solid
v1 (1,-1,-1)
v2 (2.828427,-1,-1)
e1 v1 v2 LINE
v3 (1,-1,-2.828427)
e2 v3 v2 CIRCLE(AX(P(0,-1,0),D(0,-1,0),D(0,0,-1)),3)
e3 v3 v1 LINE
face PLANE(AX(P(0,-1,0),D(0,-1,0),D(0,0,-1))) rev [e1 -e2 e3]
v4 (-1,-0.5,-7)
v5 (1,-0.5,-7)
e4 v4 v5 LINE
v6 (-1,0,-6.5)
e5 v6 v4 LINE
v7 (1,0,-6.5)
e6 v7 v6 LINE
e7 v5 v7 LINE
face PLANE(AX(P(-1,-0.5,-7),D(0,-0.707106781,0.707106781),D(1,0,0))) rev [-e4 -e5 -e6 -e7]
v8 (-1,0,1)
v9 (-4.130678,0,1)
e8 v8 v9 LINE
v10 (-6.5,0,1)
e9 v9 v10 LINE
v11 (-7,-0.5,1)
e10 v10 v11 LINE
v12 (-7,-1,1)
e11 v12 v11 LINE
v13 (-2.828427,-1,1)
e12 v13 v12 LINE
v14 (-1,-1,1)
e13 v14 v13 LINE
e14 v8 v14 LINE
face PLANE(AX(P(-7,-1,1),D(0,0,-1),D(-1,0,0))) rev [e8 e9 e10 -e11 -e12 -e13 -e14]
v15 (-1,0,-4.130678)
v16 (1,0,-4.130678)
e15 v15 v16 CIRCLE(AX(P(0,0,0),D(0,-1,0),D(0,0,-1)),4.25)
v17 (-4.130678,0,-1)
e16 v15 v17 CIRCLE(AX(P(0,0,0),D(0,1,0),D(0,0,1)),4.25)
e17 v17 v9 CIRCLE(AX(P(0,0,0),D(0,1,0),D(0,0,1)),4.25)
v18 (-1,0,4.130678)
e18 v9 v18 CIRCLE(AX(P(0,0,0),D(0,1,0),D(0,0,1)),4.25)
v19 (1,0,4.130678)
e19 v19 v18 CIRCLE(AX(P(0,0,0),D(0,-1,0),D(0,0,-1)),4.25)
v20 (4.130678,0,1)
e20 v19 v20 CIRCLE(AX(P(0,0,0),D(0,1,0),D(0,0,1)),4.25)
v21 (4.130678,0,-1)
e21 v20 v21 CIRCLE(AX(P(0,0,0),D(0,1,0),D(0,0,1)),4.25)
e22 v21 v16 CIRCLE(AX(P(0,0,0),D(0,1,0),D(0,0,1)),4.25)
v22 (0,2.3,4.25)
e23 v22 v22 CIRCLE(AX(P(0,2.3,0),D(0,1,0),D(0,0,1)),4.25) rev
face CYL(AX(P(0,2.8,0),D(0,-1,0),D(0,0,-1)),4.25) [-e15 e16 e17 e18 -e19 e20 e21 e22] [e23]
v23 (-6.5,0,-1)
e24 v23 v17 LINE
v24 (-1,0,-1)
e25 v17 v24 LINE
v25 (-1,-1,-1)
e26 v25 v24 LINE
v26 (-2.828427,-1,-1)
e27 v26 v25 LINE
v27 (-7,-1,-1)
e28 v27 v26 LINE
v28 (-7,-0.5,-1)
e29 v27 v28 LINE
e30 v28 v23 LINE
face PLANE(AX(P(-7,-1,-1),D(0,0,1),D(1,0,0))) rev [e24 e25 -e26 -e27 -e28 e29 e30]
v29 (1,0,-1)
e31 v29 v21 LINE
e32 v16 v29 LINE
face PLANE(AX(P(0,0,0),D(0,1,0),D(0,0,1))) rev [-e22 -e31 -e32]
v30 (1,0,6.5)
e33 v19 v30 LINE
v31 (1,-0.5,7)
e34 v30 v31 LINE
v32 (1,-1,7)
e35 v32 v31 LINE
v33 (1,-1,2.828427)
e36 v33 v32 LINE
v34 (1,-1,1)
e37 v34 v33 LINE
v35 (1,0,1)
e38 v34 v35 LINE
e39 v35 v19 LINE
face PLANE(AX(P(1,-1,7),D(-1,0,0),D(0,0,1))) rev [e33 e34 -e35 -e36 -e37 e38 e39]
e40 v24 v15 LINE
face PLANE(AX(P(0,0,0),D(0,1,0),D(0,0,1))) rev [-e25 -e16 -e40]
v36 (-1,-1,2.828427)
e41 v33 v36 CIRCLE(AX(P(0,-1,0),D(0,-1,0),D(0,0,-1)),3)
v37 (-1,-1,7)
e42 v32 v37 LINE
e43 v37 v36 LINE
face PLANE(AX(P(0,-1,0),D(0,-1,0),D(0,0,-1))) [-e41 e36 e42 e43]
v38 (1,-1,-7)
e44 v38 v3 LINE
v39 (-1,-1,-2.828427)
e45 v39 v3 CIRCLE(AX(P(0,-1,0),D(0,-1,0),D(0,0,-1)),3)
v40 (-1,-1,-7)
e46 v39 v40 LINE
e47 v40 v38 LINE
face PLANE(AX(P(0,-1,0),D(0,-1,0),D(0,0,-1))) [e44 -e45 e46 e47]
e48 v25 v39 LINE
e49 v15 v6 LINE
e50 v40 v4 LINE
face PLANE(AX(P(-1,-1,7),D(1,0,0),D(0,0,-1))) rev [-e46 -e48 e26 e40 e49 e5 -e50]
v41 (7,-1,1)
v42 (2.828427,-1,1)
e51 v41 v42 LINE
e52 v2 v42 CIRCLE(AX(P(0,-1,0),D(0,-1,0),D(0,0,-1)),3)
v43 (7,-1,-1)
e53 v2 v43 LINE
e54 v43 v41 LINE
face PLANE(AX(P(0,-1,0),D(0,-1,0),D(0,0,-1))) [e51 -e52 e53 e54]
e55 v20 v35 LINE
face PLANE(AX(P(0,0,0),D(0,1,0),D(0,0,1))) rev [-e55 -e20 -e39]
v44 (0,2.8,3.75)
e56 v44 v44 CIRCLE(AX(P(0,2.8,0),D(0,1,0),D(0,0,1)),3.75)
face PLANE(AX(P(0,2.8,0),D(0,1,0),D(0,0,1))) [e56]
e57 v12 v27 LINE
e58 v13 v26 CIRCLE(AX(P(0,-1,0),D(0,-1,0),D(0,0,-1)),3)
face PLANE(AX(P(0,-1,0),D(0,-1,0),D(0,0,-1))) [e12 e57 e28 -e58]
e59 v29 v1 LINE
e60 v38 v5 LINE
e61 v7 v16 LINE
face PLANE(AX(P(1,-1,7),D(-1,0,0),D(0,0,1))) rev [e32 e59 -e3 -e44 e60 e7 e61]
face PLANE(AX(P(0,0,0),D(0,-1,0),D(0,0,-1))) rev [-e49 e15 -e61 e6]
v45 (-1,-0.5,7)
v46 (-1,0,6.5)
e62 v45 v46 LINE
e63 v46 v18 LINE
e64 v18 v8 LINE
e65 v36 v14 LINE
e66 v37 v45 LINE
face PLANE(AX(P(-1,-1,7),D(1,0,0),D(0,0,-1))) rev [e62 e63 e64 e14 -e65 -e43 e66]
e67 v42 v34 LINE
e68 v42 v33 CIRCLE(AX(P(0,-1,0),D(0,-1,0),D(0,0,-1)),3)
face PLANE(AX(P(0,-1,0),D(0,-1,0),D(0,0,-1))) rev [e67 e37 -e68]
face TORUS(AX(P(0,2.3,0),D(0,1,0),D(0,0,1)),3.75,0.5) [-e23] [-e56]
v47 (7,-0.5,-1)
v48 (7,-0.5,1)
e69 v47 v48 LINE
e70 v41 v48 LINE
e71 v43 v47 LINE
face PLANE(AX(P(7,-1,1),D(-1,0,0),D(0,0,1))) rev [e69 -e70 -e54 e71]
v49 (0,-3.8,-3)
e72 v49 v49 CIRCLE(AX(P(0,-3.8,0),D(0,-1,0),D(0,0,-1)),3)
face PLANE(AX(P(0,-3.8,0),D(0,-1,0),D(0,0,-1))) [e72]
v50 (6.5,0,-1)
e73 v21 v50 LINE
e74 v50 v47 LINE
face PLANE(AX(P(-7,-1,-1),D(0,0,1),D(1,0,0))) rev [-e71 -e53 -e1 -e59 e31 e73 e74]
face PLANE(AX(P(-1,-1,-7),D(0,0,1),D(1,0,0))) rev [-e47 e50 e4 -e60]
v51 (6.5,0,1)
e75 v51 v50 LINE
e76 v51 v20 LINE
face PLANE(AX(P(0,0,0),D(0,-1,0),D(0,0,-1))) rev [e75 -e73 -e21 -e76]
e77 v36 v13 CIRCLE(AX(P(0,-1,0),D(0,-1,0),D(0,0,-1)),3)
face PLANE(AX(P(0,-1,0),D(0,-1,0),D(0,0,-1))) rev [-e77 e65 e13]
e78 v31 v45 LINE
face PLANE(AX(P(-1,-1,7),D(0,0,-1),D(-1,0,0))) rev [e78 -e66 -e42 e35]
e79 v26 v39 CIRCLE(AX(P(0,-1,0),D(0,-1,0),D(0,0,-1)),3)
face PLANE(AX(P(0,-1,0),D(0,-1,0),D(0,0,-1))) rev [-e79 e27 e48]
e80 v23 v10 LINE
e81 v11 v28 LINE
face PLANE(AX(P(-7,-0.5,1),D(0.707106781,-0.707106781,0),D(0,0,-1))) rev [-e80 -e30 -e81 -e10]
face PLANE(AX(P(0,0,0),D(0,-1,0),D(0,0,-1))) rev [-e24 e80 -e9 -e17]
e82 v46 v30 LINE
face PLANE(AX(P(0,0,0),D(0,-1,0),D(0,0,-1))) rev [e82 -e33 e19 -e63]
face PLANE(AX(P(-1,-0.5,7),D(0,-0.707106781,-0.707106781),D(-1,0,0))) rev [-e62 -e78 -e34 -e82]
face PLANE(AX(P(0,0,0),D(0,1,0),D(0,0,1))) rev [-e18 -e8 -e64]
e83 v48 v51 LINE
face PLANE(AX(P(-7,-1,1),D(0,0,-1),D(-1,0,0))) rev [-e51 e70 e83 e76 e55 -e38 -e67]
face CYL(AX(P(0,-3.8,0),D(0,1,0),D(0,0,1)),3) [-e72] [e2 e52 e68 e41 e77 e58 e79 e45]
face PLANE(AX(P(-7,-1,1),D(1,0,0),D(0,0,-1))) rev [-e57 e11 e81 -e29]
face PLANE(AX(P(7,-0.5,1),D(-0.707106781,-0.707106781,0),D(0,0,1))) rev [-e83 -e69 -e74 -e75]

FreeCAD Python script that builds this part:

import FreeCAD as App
import Part
import Sketcher


def edges_at(feature, points):
    """Names of the edges that pass closest to the given points."""
    edges = feature.Shape.Edges
    near = lambda p: min(range(len(edges)), key=lambda i: edges[i].distToShape(Part.Vertex(*p))[0])
    return sorted({f"Edge{near(p) + 1}" for p in points})


def add_polygon(sketch, points):
    """Adds a closed chain of lines whose ends are joined by coincident constraints."""
    first, n = sketch.GeometryCount, len(points)
    for a, b in zip(points, points[1:] + points[:1]):
        sketch.addGeometry(Part.LineSegment(App.Vector(*a, 0), App.Vector(*b, 0)), False)
    for i in range(n):
        sketch.addConstraint(Sketcher.Constraint("Coincident", first + i, 2, first + (i + 1) % n, 1))

doc = App.newDocument("Part")
body = doc.addObject("PartDesign::Body", "Body")

# Sketch on XZ plane
sketch1 = body.newObject("Sketcher::SketchObject", "Sketch")
sketch1.AttachmentSupport = (doc.getObject("XZ_Plane"), [""])
sketch1.MapMode = "FlatFace"
sketch1.addGeometry(Part.Circle(App.Vector(0, 0, 0), App.Vector(0, 0, 1), 4.25), False)
sketch1.addConstraint([
    Sketcher.Constraint("Coincident", 0, 3, -1, 1),
    Sketcher.Constraint("Diameter", 0, 8.5),
])
pad1 = body.newObject("PartDesign::Pad", "Pad")
pad1.Profile = sketch1
pad1.Length = 2.8
pad1.Reversed = True
doc.recompute()

fillet = body.newObject("PartDesign::Fillet", "Fillet")
fillet.Base = (pad1, edges_at(pad1, [(0, 2.8, -4.25)]))
fillet.Radius = 0.5

# Sketch on XZ plane
sketch2 = body.newObject("Sketcher::SketchObject", "Sketch001")
sketch2.AttachmentSupport = (doc.getObject("XZ_Plane"), [""])
sketch2.MapMode = "FlatFace"
add_polygon(sketch2, [(-7, 1), (-7, -1), (7, -1), (7, 1)])  # lines 0-3
sketch2.addConstraint([
    Sketcher.Constraint("Vertical", 0),
    Sketcher.Constraint("Horizontal", 1),
    Sketcher.Constraint("Vertical", 2),
    Sketcher.Constraint("Horizontal", 3),
    Sketcher.Constraint("Symmetric", 0, 2, 2, 2, -1, 1),
    Sketcher.Constraint("DistanceX", 1, 1, 1, 2, 14.0),
    Sketcher.Constraint("DistanceY", 0, 2, 0, 1, 2.0),
])
pad2 = body.newObject("PartDesign::Pad", "Pad001")
pad2.Profile = sketch2
pad2.Length = 1

# Sketch on XZ plane
sketch3 = body.newObject("Sketcher::SketchObject", "Sketch002")
sketch3.AttachmentSupport = (doc.getObject("XZ_Plane"), [""])
sketch3.MapMode = "FlatFace"
add_polygon(sketch3, [(-1, 7), (-1, -7), (1, -7), (1, 7)])  # lines 0-3
sketch3.addConstraint([
    Sketcher.Constraint("Vertical", 0),
    Sketcher.Constraint("Horizontal", 1),
    Sketcher.Constraint("Vertical", 2),
    Sketcher.Constraint("Horizontal", 3),
    Sketcher.Constraint("Symmetric", 0, 2, 2, 2, -1, 1),
    Sketcher.Constraint("DistanceX", 1, 1, 1, 2, 2.0),
    Sketcher.Constraint("DistanceY", 0, 2, 0, 1, 14.0),
])
pad3 = body.newObject("PartDesign::Pad", "Pad002")
pad3.Profile = sketch3
pad3.Length = 1
doc.recompute()

chamfer = body.newObject("PartDesign::Chamfer", "Chamfer")
chamfer.Base = (pad3, edges_at(pad3, [(0, 0, 7)]))
chamfer.Size = 0.5
doc.recompute()

chamfer2 = body.newObject("PartDesign::Chamfer", "Chamfer001")
chamfer2.Base = (chamfer, edges_at(chamfer, [(7, 0, 0)]))
chamfer2.Size = 0.5
doc.recompute()

chamfer3 = body.newObject("PartDesign::Chamfer", "Chamfer002")
chamfer3.Base = (chamfer2, edges_at(chamfer2, [(-7, 0, 0), (0, 0, -7)]))
chamfer3.Size = 0.5

# Sketch on XZ plane
sketch4 = body.newObject("Sketcher::SketchObject", "Sketch003")
sketch4.AttachmentSupport = (doc.getObject("XZ_Plane"), [""])
sketch4.MapMode = "FlatFace"
sketch4.AttachmentOffset = App.Placement(App.Vector(0, 0, 1), App.Rotation())
sketch4.addGeometry(Part.Circle(App.Vector(0, 0, 0), App.Vector(0, 0, 1), 3), False)
sketch4.addConstraint([
    Sketcher.Constraint("Coincident", 0, 3, -1, 1),
    Sketcher.Constraint("Diameter", 0, 6.0),
])
pad4 = body.newObject("PartDesign::Pad", "Pad003")
pad4.Profile = sketch4
pad4.Length = 2.8

doc.recompute()
